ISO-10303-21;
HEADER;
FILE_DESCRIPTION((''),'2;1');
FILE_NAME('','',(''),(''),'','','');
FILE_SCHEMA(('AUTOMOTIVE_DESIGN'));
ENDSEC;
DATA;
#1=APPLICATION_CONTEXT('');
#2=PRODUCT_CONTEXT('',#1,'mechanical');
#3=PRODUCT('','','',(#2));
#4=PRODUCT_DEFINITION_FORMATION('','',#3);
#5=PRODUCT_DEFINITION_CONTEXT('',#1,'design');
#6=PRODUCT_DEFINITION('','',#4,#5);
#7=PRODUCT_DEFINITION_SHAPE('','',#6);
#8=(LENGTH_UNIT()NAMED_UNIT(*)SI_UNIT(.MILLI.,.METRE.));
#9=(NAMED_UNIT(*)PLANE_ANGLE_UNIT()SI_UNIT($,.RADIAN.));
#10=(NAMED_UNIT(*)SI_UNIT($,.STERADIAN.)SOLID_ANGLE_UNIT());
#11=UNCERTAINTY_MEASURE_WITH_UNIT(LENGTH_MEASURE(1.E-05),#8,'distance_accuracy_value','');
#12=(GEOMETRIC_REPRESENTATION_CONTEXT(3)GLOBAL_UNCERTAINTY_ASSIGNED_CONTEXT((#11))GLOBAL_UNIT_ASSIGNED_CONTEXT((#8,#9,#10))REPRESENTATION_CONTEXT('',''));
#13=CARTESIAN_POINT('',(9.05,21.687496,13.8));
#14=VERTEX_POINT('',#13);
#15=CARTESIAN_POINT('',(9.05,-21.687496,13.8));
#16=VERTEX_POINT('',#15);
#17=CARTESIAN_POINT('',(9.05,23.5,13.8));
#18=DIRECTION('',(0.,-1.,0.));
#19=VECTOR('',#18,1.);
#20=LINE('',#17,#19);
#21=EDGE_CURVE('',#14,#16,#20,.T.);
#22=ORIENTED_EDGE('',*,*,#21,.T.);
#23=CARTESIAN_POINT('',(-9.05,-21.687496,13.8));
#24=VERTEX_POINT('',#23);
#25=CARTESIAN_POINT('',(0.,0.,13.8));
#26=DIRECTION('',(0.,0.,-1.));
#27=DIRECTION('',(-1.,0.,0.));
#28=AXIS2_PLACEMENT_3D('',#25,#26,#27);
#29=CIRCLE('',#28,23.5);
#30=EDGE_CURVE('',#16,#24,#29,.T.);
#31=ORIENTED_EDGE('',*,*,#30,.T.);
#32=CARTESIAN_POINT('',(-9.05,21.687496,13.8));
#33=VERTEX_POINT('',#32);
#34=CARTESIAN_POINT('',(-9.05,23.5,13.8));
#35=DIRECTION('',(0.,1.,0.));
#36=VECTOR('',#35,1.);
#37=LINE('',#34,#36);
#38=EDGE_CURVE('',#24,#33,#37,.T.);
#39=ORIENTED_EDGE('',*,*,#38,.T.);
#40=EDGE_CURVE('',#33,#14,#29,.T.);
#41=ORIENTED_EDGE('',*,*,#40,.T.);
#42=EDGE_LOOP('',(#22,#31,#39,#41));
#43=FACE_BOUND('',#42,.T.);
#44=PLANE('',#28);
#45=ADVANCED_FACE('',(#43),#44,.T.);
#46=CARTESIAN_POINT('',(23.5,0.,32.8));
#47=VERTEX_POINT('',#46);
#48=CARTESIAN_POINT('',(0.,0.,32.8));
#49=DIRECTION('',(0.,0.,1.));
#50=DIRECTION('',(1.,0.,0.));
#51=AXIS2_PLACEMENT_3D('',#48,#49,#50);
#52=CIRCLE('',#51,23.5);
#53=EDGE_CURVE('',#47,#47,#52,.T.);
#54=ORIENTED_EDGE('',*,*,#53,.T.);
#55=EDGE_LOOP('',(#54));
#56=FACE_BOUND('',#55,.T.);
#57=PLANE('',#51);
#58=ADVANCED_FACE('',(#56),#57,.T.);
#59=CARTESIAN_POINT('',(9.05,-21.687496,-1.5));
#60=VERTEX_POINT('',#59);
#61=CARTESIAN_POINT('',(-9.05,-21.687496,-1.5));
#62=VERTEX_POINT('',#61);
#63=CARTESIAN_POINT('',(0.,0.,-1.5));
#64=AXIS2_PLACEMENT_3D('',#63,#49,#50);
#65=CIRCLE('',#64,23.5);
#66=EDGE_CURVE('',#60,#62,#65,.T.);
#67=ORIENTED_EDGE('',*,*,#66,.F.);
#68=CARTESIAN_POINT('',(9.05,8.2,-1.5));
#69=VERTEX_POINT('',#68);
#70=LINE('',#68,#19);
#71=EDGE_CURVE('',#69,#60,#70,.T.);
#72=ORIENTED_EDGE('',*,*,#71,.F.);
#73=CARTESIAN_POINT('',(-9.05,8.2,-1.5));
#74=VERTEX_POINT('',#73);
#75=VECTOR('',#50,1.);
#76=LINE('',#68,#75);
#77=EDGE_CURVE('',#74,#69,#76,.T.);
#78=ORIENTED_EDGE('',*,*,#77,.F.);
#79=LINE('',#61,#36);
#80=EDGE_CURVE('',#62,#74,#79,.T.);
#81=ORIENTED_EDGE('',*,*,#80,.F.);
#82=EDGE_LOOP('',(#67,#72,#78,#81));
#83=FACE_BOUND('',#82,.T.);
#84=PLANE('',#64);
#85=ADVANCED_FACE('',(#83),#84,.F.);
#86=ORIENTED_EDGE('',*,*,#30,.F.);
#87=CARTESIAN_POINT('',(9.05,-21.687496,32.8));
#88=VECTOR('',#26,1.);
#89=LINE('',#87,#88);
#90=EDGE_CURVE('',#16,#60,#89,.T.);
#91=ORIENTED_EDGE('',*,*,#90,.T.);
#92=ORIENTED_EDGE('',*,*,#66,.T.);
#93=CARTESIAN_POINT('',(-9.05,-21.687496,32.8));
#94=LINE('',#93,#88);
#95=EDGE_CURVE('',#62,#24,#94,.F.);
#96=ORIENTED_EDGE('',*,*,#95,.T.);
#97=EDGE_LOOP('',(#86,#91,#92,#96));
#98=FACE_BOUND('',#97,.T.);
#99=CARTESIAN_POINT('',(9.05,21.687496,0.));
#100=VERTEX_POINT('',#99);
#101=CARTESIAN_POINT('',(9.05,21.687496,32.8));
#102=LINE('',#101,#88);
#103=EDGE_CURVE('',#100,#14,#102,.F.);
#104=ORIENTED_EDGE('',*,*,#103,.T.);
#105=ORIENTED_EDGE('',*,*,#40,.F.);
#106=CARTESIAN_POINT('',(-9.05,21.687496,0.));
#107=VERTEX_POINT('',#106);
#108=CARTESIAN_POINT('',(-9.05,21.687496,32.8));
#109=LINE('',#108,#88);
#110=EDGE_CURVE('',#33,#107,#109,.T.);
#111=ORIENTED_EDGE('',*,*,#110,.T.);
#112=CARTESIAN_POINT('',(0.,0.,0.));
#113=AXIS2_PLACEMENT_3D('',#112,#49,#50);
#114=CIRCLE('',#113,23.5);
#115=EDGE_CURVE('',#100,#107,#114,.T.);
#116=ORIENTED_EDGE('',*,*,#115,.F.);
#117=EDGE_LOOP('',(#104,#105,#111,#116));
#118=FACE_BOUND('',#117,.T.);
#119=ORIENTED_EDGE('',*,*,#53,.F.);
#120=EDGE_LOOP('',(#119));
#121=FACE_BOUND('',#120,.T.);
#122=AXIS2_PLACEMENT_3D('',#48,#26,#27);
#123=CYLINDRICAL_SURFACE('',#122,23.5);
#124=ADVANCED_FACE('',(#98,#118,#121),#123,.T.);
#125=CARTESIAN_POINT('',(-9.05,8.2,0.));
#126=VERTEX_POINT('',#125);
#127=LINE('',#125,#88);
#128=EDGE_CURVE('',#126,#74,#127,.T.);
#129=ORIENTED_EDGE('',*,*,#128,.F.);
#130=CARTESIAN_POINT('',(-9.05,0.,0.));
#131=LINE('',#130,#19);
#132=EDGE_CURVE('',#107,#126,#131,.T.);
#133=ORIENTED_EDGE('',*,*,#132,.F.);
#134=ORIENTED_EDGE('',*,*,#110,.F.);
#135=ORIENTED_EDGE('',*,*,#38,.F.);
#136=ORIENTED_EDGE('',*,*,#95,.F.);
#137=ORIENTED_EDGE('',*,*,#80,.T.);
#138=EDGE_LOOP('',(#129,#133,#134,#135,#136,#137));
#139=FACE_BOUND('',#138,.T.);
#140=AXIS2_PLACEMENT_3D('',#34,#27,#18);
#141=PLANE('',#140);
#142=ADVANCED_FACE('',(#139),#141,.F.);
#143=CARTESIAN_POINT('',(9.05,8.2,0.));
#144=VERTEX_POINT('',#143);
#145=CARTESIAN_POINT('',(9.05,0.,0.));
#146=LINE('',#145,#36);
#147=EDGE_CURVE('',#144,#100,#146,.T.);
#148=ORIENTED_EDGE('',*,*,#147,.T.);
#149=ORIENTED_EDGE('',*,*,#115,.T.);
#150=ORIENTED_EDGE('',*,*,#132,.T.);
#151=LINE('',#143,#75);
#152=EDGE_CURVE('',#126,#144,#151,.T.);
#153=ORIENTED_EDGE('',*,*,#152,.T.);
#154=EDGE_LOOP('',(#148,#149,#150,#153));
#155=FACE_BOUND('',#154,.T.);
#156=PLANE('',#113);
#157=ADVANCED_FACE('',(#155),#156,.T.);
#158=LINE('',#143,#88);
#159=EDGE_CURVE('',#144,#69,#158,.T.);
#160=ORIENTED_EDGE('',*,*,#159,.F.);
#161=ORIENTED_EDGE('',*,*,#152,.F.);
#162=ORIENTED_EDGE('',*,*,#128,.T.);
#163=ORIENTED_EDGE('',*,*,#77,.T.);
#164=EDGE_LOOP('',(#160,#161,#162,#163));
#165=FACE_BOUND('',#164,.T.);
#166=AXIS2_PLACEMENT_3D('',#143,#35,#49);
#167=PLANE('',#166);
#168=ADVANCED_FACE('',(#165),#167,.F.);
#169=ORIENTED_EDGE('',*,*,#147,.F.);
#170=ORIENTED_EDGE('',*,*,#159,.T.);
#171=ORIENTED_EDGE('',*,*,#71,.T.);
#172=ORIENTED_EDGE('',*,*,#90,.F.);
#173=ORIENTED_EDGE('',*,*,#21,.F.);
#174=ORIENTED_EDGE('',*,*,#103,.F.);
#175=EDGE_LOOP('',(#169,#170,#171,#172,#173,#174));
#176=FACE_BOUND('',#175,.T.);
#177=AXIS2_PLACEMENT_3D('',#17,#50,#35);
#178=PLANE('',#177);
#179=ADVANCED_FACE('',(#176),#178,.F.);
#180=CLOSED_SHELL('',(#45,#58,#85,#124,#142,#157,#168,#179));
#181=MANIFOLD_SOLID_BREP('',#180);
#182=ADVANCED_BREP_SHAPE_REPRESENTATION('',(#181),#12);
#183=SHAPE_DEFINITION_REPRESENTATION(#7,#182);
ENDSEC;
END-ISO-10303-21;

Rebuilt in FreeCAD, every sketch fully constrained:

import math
import FreeCAD as App
import Part
import Sketcher

doc = App.newDocument("Part")
body = doc.addObject("PartDesign::Body", "Body")

sketch1 = body.newObject("Sketcher::SketchObject", "Sketch")
sketch1.AttachmentSupport = (doc.getObject("XY_Plane"), [""])
sketch1.MapMode = "FlatFace"
sketch1.addGeometry(Part.Circle(App.Vector(0, 0, 0), App.Vector(0, 0, 1), 24), False)
sketch1.addConstraint([
    Sketcher.Constraint("Coincident", 0, 3, -1, 1),
    Sketcher.Constraint("Diameter", 0, 47.0),
])
pad1 = body.newObject("PartDesign::Pad", "Pad")
pad1.Profile = sketch1
pad1.Length = 32.8

sketch2 = body.newObject("Sketcher::SketchObject", "Sketch001")
sketch2.AttachmentSupport = (doc.getObject("XY_Plane"), [""])
sketch2.MapMode = "FlatFace"
sketch2.addGeometry([
    Part.LineSegment(App.Vector(9, 24, 0), App.Vector(9, -24, 0)),
    Part.LineSegment(App.Vector(9, -24, 0), App.Vector(-9, -24, 0)),
    Part.LineSegment(App.Vector(-9, -24, 0), App.Vector(-9, 24, 0)),
    Part.LineSegment(App.Vector(-9, 24, 0), App.Vector(9, 24, 0)),
], False)
sketch2.addConstraint([
    Sketcher.Constraint("Coincident", 0, 2, 1, 1),
    Sketcher.Constraint("Coincident", 1, 2, 2, 1),
    Sketcher.Constraint("Coincident", 2, 2, 3, 1),
    Sketcher.Constraint("Coincident", 3, 2, 0, 1),
    Sketcher.Constraint("Vertical", 0),
    Sketcher.Constraint("Horizontal", 1),
    Sketcher.Constraint("Vertical", 2),
    Sketcher.Constraint("Horizontal", 3),
    Sketcher.Constraint("Symmetric", 0, 2, 2, 2, -1, 1),
    Sketcher.Constraint("DistanceY", 0, 2, 0, 1, 47.0),
    Sketcher.Constraint("DistanceX", 1, 2, 1, 1, 18.1),
])
pocket1 = body.newObject("PartDesign::Pocket", "Pocket")
pocket1.Profile = sketch2
pocket1.Length = 13.8
pocket1.Reversed = True

sketch3 = body.newObject("Sketcher::SketchObject", "Sketch002")
sketch3.AttachmentSupport = (doc.getObject("XY_Plane"), [""])
sketch3.MapMode = "FlatFace"
sketch3.addGeometry(Part.Circle(App.Vector(0, 0, 0), App.Vector(0, 0, 1), 24), False)
sketch3.addConstraint([
    Sketcher.Constraint("Coincident", 0, 3, -1, 1),
    Sketcher.Constraint("Diameter", 0, 47.0),
])
pad2 = body.newObject("PartDesign::Pad", "Pad001")
pad2.Profile = sketch3
pad2.Length = 1.5
pad2.Reversed = True

sketch4 = body.newObject("Sketcher::SketchObject", "Sketch003")
sketch4.AttachmentSupport = (doc.getObject("XY_Plane"), [""])
sketch4.MapMode = "FlatFace"
sketch4.AttachmentOffset = App.Placement(App.Vector(0, 0, -1.5), App.Rotation())
sketch4.addGeometry([
    Part.LineSegment(App.Vector(-9, 8, 0), App.Vector(9, 8, 0)),
    Part.LineSegment(App.Vector(9, 8, 0), App.Vector(9, -22, 0)),
    Part.ArcOfCircle(Part.Circle(App.Vector(0, 0, 0), App.Vector(0, 0, 1), 24), math.radians(-113), math.radians(-67)),
    Part.LineSegment(App.Vector(-9, -22, 0), App.Vector(-9, 8, 0)),
], False)
sketch4.addConstraint([
    Sketcher.Constraint("Coincident", 0, 2, 1, 1),
    Sketcher.Constraint("Coincident", 1, 2, 2, 2),
    Sketcher.Constraint("Coincident", 2, 1, 3, 1),
    Sketcher.Constraint("Coincident", 3, 2, 0, 1),
    Sketcher.Constraint("Horizontal", 0),
    Sketcher.Constraint("Vertical", 1),
    Sketcher.Constraint("Vertical", 3),
    Sketcher.Constraint("Coincident", 2, 3, -1, 1),
    Sketcher.Constraint("Horizontal", 1, 2, 2, 1),
    Sketcher.Constraint("Radius", 2, 23.5),
    Sketcher.Constraint("DistanceX", 0, 1, 0, 2, 18.1),
    Sketcher.Constraint("DistanceY", -1, 1, 0, 2, 8.2),
])
pocket2 = body.newObject("PartDesign::Pocket", "Pocket001")
pocket2.Profile = sketch4
pocket2.Length = 1.5
pocket2.Reversed = True

doc.recompute()
